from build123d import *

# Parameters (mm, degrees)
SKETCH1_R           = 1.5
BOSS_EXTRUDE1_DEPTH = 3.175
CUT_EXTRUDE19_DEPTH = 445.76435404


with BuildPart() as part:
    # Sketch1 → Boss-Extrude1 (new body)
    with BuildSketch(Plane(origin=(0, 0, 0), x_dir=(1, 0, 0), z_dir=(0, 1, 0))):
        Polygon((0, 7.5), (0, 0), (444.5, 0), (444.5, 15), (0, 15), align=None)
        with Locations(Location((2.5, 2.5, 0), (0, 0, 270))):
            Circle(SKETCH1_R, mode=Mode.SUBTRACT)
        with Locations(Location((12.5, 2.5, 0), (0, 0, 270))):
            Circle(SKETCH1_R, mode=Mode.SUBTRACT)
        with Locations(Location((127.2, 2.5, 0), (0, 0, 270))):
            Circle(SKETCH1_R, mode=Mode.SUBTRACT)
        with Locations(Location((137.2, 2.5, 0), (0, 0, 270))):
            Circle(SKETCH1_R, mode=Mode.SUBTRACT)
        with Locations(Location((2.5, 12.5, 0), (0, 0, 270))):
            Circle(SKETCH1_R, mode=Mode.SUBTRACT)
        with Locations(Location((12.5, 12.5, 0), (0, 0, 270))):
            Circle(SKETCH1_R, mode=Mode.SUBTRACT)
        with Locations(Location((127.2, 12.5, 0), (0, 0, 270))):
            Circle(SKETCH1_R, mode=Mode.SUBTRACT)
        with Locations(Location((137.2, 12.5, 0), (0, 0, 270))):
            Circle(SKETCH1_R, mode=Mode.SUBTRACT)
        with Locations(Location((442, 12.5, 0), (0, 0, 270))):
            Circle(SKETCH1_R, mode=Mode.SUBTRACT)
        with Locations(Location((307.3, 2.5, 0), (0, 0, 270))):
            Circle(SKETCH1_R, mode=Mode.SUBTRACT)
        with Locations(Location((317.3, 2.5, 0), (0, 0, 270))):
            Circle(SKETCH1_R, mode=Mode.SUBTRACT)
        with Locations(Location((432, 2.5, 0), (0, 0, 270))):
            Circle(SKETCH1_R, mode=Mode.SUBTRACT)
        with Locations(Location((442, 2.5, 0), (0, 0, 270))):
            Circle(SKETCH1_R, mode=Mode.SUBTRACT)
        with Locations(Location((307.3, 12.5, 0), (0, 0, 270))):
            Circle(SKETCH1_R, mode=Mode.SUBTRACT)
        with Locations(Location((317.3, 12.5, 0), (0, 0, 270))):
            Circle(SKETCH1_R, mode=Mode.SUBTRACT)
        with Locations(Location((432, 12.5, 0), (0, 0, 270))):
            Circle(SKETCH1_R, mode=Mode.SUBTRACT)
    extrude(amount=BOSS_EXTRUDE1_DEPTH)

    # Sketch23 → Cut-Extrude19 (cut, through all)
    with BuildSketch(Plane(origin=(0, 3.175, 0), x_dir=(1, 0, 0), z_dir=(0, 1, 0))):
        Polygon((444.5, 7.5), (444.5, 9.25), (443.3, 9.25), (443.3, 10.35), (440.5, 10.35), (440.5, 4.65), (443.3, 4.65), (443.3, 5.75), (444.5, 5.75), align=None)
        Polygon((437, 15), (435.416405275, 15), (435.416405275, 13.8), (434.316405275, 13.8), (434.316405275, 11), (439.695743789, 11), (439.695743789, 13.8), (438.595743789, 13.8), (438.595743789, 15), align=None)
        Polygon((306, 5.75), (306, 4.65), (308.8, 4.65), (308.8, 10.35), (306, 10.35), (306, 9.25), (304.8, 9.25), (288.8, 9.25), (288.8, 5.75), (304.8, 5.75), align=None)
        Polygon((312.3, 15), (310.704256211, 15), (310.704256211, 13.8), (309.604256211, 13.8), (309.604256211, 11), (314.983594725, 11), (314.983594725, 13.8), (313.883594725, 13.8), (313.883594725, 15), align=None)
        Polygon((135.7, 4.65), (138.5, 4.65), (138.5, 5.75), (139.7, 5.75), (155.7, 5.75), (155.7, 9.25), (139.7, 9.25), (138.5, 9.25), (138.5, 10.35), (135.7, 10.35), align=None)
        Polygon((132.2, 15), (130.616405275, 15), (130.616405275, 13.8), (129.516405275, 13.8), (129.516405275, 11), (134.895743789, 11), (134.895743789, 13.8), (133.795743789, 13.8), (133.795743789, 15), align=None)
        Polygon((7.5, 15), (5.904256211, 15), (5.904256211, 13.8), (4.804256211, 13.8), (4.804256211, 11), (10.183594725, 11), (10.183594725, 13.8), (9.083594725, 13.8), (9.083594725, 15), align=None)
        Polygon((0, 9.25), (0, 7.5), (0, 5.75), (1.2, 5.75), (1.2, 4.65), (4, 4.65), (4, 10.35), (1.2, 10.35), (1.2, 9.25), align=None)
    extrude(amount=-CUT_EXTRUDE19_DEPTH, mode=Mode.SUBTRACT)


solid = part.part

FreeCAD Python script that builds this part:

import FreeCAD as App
import Part
import Sketcher
Q = App.Units.Quantity


def add_polygon(sketch, points):
    """Adds a closed chain of lines whose ends are joined by coincident constraints."""
    first, n = sketch.GeometryCount, len(points)
    for a, b in zip(points, points[1:] + points[:1]):
        sketch.addGeometry(Part.LineSegment(App.Vector(*a, 0), App.Vector(*b, 0)), False)
    for i in range(n):
        sketch.addConstraint(Sketcher.Constraint("Coincident", first + i, 2, first + (i + 1) % n, 1))

doc = App.newDocument("Part")
body = doc.addObject("PartDesign::Body", "Body")

# Sketch on XZ plane
sketch1 = body.newObject("Sketcher::SketchObject", "Sketch")
sketch1.AttachmentSupport = (doc.getObject("XZ_Plane"), [""])
sketch1.MapMode = "FlatFace"
add_polygon(sketch1, [(0, 0), (444.5, 0), (444.5, -15), (0, -15)])  # lines 0-3
sketch1.addGeometry(Part.Circle(App.Vector(2.5, -2.5, 0), App.Vector(0, 0, 1), 1.5), False)  # 4
sketch1.addGeometry(Part.Circle(App.Vector(12.5, -2.5, 0), App.Vector(0, 0, 1), 1.5), False)  # 5
sketch1.addGeometry(Part.Circle(App.Vector(127.2, -2.5, 0), App.Vector(0, 0, 1), 1.5), False)  # 6
sketch1.addGeometry(Part.Circle(App.Vector(137.2, -2.5, 0), App.Vector(0, 0, 1), 1.5), False)  # 7
sketch1.addGeometry(Part.Circle(App.Vector(307.3, -2.5, 0), App.Vector(0, 0, 1), 1.5), False)  # 8
sketch1.addGeometry(Part.Circle(App.Vector(317.3, -2.5, 0), App.Vector(0, 0, 1), 1.5), False)  # 9
sketch1.addGeometry(Part.Circle(App.Vector(432, -2.5, 0), App.Vector(0, 0, 1), 1.5), False)  # 10
sketch1.addGeometry(Part.Circle(App.Vector(442, -2.5, 0), App.Vector(0, 0, 1), 1.5), False)  # 11
sketch1.addGeometry(Part.Circle(App.Vector(2.5, -12.5, 0), App.Vector(0, 0, 1), 1.5), False)  # 12
sketch1.addGeometry(Part.Circle(App.Vector(12.5, -12.5, 0), App.Vector(0, 0, 1), 1.5), False)  # 13
sketch1.addGeometry(Part.Circle(App.Vector(127.2, -12.5, 0), App.Vector(0, 0, 1), 1.5), False)  # 14
sketch1.addGeometry(Part.Circle(App.Vector(137.2, -12.5, 0), App.Vector(0, 0, 1), 1.5), False)  # 15
sketch1.addGeometry(Part.Circle(App.Vector(307.3, -12.5, 0), App.Vector(0, 0, 1), 1.5), False)  # 16
sketch1.addGeometry(Part.Circle(App.Vector(317.3, -12.5, 0), App.Vector(0, 0, 1), 1.5), False)  # 17
sketch1.addGeometry(Part.Circle(App.Vector(432, -12.5, 0), App.Vector(0, 0, 1), 1.5), False)  # 18
sketch1.addGeometry(Part.Circle(App.Vector(442, -12.5, 0), App.Vector(0, 0, 1), 1.5), False)  # 19
sketch1.addConstraint([
    Sketcher.Constraint("Horizontal", 0),
    Sketcher.Constraint("Vertical", 1),
    Sketcher.Constraint("Horizontal", 2),
    Sketcher.Constraint("Vertical", 3),
    Sketcher.Constraint("Coincident", 3, 2, -1, 1),
    Sketcher.Constraint("Equal", 4, 5),
    Sketcher.Constraint("Equal", 5, 6),
    Sketcher.Constraint("Equal", 6, 7),
    Sketcher.Constraint("Equal", 7, 8),
    Sketcher.Constraint("Equal", 8, 9),
    Sketcher.Constraint("Equal", 9, 10),
    Sketcher.Constraint("Equal", 10, 11),
    Sketcher.Constraint("Equal", 11, 12),
    Sketcher.Constraint("Equal", 12, 13),
    Sketcher.Constraint("Equal", 13, 14),
    Sketcher.Constraint("Equal", 14, 15),
    Sketcher.Constraint("Equal", 15, 16),
    Sketcher.Constraint("Equal", 16, 17),
    Sketcher.Constraint("Equal", 17, 18),
    Sketcher.Constraint("Equal", 18, 19),
    Sketcher.Constraint("Horizontal", 4, 3, 5, 3),
    Sketcher.Constraint("Horizontal", 5, 3, 6, 3),
    Sketcher.Constraint("Horizontal", 6, 3, 7, 3),
    Sketcher.Constraint("Horizontal", 7, 3, 8, 3),
    Sketcher.Constraint("Horizontal", 8, 3, 9, 3),
    Sketcher.Constraint("Horizontal", 9, 3, 10, 3),
    Sketcher.Constraint("Horizontal", 10, 3, 11, 3),
    Sketcher.Constraint("Horizontal", 12, 3, 13, 3),
    Sketcher.Constraint("Horizontal", 13, 3, 14, 3),
    Sketcher.Constraint("Horizontal", 14, 3, 15, 3),
    Sketcher.Constraint("Horizontal", 15, 3, 16, 3),
    Sketcher.Constraint("Horizontal", 16, 3, 17, 3),
    Sketcher.Constraint("Horizontal", 17, 3, 18, 3),
    Sketcher.Constraint("Horizontal", 18, 3, 19, 3),
    Sketcher.Constraint("Vertical", 4, 3, 12, 3),
    Sketcher.Constraint("Vertical", 5, 3, 13, 3),
    Sketcher.Constraint("Vertical", 6, 3, 14, 3),
    Sketcher.Constraint("Vertical", 7, 3, 15, 3),
    Sketcher.Constraint("Vertical", 8, 3, 16, 3),
    Sketcher.Constraint("Vertical", 9, 3, 17, 3),
    Sketcher.Constraint("Vertical", 10, 3, 18, 3),
    Sketcher.Constraint("Vertical", 11, 3, 19, 3),
    Sketcher.Constraint("Diameter", 4, Q("3 mm")),
    Sketcher.Constraint("DistanceY", 1, 2, 1, 1, Q("15 mm")),
    Sketcher.Constraint("DistanceX", 0, 1, 0, 2, Q("444.5 mm")),
    Sketcher.Constraint("DistanceX", -1, 1, 10, 3, Q("432 mm")),
    Sketcher.Constraint("DistanceX", -1, 1, 11, 3, Q("442 mm")),
    Sketcher.Constraint("DistanceX", 4, 3, 5, 3, Q("10 mm")),
    Sketcher.Constraint("DistanceX", 6, 3, 7, 3, Q("10 mm")),
    Sketcher.Constraint("DistanceX", 8, 3, 9, 3, Q("10 mm")),
    Sketcher.Constraint("DistanceY", 12, 3, 4, 3, Q("10 mm")),
    Sketcher.Constraint("DistanceX", -1, 1, 4, 3, Q("2.5 mm")),
    Sketcher.Constraint("DistanceY", 4, 3, -1, 1, Q("2.5 mm")),
    Sketcher.Constraint("DistanceX", -1, 1, 6, 3, Q("127.2 mm")),
    Sketcher.Constraint("DistanceX", -1, 1, 8, 3, Q("307.3 mm")),
])
pad1 = body.newObject("PartDesign::Pad", "Pad")
pad1.Profile = sketch1
pad1.Length = 3.175
pad1.Reversed = True

# Sketch on XZ plane
sketch2 = body.newObject("Sketcher::SketchObject", "Sketch001")
sketch2.AttachmentSupport = (doc.getObject("XZ_Plane"), [""])
sketch2.MapMode = "FlatFace"
sketch2.AttachmentOffset = App.Placement(App.Vector(0, 0, -3.175), App.Rotation())
add_polygon(sketch2, [(444.5, -9.25), (443.3, -9.25), (443.3, -10.35), (440.5, -10.35), (440.5, -4.65), (443.3, -4.65), (443.3, -5.75), (444.5, -5.75)])  # lines 0-7
add_polygon(sketch2, [(435.416405, -15), (435.416405, -13.8), (434.316405, -13.8), (434.316405, -11), (439.695744, -11), (439.695744, -13.8), (438.595744, -13.8), (438.595744, -15)])  # lines 8-15
add_polygon(sketch2, [(306, -5.75), (306, -4.65), (308.8, -4.65), (308.8, -10.35), (306, -10.35), (306, -9.25), (288.8, -9.25), (288.8, -5.75)])  # lines 16-23
add_polygon(sketch2, [(310.704256, -15), (310.704256, -13.8), (309.604256, -13.8), (309.604256, -11), (314.983595, -11), (314.983595, -13.8), (313.883595, -13.8), (313.883595, -15)])  # lines 24-31
add_polygon(sketch2, [(135.7, -4.65), (138.5, -4.65), (138.5, -5.75), (155.7, -5.75), (155.7, -9.25), (138.5, -9.25), (138.5, -10.35), (135.7, -10.35)])  # lines 32-39
add_polygon(sketch2, [(130.616405, -15), (130.616405, -13.8), (129.516405, -13.8), (129.516405, -11), (134.895744, -11), (134.895744, -13.8), (133.795744, -13.8), (133.795744, -15)])  # lines 40-47
add_polygon(sketch2, [(5.904256, -15), (5.904256, -13.8), (4.804256, -13.8), (4.804256, -11), (10.183595, -11), (10.183595, -13.8), (9.083595, -13.8), (9.083595, -15)])  # lines 48-55
add_polygon(sketch2, [(0, -9.25), (0, -5.75), (1.2, -5.75), (1.2, -4.65), (4, -4.65), (4, -10.35), (1.2, -10.35), (1.2, -9.25)])  # lines 56-63
sketch2.addConstraint([
    Sketcher.Constraint("Horizontal", 0),
    Sketcher.Constraint("Vertical", 1),
    Sketcher.Constraint("Horizontal", 2),
    Sketcher.Constraint("Vertical", 3),
    Sketcher.Constraint("Horizontal", 4),
    Sketcher.Constraint("Vertical", 5),
    Sketcher.Constraint("Horizontal", 6),
    Sketcher.Constraint("Vertical", 7),
    Sketcher.Constraint("Vertical", 8),
    Sketcher.Constraint("Horizontal", 9),
    Sketcher.Constraint("Vertical", 10),
    Sketcher.Constraint("Horizontal", 11),
    Sketcher.Constraint("Vertical", 12),
    Sketcher.Constraint("Horizontal", 13),
    Sketcher.Constraint("Vertical", 14),
    Sketcher.Constraint("Horizontal", 15),
    Sketcher.Constraint("Vertical", 16),
    Sketcher.Constraint("Horizontal", 17),
    Sketcher.Constraint("Vertical", 18),
    Sketcher.Constraint("Horizontal", 19),
    Sketcher.Constraint("Vertical", 20),
    Sketcher.Constraint("Horizontal", 21),
    Sketcher.Constraint("Vertical", 22),
    Sketcher.Constraint("Horizontal", 23),
    Sketcher.Constraint("Vertical", 24),
    Sketcher.Constraint("Horizontal", 25),
    Sketcher.Constraint("Vertical", 26),
    Sketcher.Constraint("Horizontal", 27),
    Sketcher.Constraint("Vertical", 28),
    Sketcher.Constraint("Horizontal", 29),
    Sketcher.Constraint("Vertical", 30),
    Sketcher.Constraint("Horizontal", 31),
    Sketcher.Constraint("Horizontal", 32),
    Sketcher.Constraint("Vertical", 33),
    Sketcher.Constraint("Horizontal", 34),
    Sketcher.Constraint("Vertical", 35),
    Sketcher.Constraint("Horizontal", 36),
    Sketcher.Constraint("Vertical", 37),
    Sketcher.Constraint("Horizontal", 38),
    Sketcher.Constraint("Vertical", 39),
    Sketcher.Constraint("Vertical", 40),
    Sketcher.Constraint("Horizontal", 41),
    Sketcher.Constraint("Vertical", 42),
    Sketcher.Constraint("Horizontal", 43),
    Sketcher.Constraint("Vertical", 44),
    Sketcher.Constraint("Horizontal", 45),
    Sketcher.Constraint("Vertical", 46),
    Sketcher.Constraint("Horizontal", 47),
    Sketcher.Constraint("Vertical", 48),
    Sketcher.Constraint("Horizontal", 49),
    Sketcher.Constraint("Vertical", 50),
    Sketcher.Constraint("Horizontal", 51),
    Sketcher.Constraint("Vertical", 52),
    Sketcher.Constraint("Horizontal", 53),
    Sketcher.Constraint("Vertical", 54),
    Sketcher.Constraint("Horizontal", 55),
    Sketcher.Constraint("Vertical", 56),
    Sketcher.Constraint("Horizontal", 57),
    Sketcher.Constraint("Vertical", 58),
    Sketcher.Constraint("Horizontal", 59),
    Sketcher.Constraint("Vertical", 60),
    Sketcher.Constraint("Horizontal", 61),
    Sketcher.Constraint("Vertical", 62),
    Sketcher.Constraint("Horizontal", 63),
    Sketcher.Constraint("PointOnObject", 56, 2, -2),
    Sketcher.Constraint("Horizontal", 9, 2, 12, 2),
    Sketcher.Constraint("Horizontal", 4, 2, 16, 2),
    Sketcher.Constraint("Horizontal", 2, 2, 18, 2),
    Sketcher.Constraint("Horizontal", 7, 2, 20, 2),
    Sketcher.Constraint("Horizontal", 6, 2, 22, 2),
    Sketcher.Constraint("Horizontal", 13, 2, 24, 2),
    Sketcher.Constraint("Horizontal", 11, 2, 26, 2),
    Sketcher.Constraint("Horizontal", 25, 2, 28, 2),
    Sketcher.Constraint("Horizontal", 15, 2, 30, 2),
    Sketcher.Constraint("Horizontal", 17, 2, 32, 2),
    Sketcher.Constraint("Horizontal", 23, 2, 33, 2),
    Sketcher.Constraint("Horizontal", 21, 2, 35, 2),
    Sketcher.Constraint("Horizontal", 19, 2, 37, 2),
    Sketcher.Constraint("Horizontal", 29, 2, 40, 2),
    Sketcher.Constraint("Horizontal", 27, 2, 42, 2),
    Sketcher.Constraint("Horizontal", 41, 2, 44, 2),
    Sketcher.Constraint("Horizontal", 31, 2, 46, 2),
    Sketcher.Constraint("Horizontal", 45, 2, 48, 2),
    Sketcher.Constraint("Horizontal", 43, 2, 50, 2),
    Sketcher.Constraint("Horizontal", 49, 2, 52, 2),
    Sketcher.Constraint("Horizontal", 47, 2, 54, 2),
    Sketcher.Constraint("Horizontal", 34, 2, 56, 2),
    Sketcher.Constraint("Horizontal", 39, 2, 58, 2),
    Sketcher.Constraint("Horizontal", 38, 2, 60, 2),
    Sketcher.Constraint("Horizontal", 36, 2, 62, 2),
    Sketcher.Constraint("Vertical", 1, 2, 4, 2),
    Sketcher.Constraint("Vertical", 16, 2, 19, 2),
    Sketcher.Constraint("Vertical", 33, 2, 36, 2),
    Sketcher.Constraint("Vertical", 58, 2, 61, 2),
    Sketcher.Constraint("Equal", 9, 13),
    Sketcher.Constraint("Equal", 4, 17),
    Sketcher.Constraint("Equal", 13, 25),
    Sketcher.Constraint("Equal", 11, 27),
    Sketcher.Constraint("Equal", 25, 29),
    Sketcher.Constraint("Equal", 19, 32),
    Sketcher.Constraint("Equal", 23, 34),
    Sketcher.Constraint("Equal", 29, 41),
    Sketcher.Constraint("Equal", 27, 43),
    Sketcher.Constraint("Equal", 41, 45),
    Sketcher.Constraint("Equal", 45, 49),
    Sketcher.Constraint("Equal", 43, 51),
    Sketcher.Constraint("Equal", 49, 53),
    Sketcher.Constraint("Equal", 6, 57),
    Sketcher.Constraint("Equal", 38, 59),
    Sketcher.Constraint("Equal", 53, 1),
    Sketcher.Constraint("Equal", 1, 5),
    Sketcher.Constraint("Equal", 63, 8),
    Sketcher.Constraint("Equal", 61, 10),
    Sketcher.Constraint("DistanceX", 0, 2, 0, 1, Q("1.2 mm")),
    Sketcher.Constraint("DistanceX", 2, 2, 2, 1, Q("2.8 mm")),
    Sketcher.Constraint("DistanceX", 9, 2, 9, 1, Q("1.1 mm")),
    Sketcher.Constraint("DistanceX", 21, 2, 21, 1, Q("17.2 mm")),
    Sketcher.Constraint("DistanceY", 3, 1, 3, 2, Q("5.7 mm")),
    Sketcher.Constraint("DistanceY", 10, 2, -1, 1, Q("11 mm")),
    Sketcher.Constraint("DistanceX", -1, 1, 16, 2, Q("306 mm")),
    Sketcher.Constraint("DistanceX", -1, 1, 0, 2, Q("443.3 mm")),
    Sketcher.Constraint("DistanceX", -1, 1, 32, 2, Q("138.5 mm")),
    Sketcher.Constraint("DistanceY", 0, 2, -1, 1, Q("9.25 mm")),
    Sketcher.Constraint("DistanceX", 11, 1, 11, 2, Q("5.379339 mm")),
    Sketcher.Constraint("DistanceX", -1, 1, 8, 2, Q("435.416405 mm")),
    Sketcher.Constraint("DistanceX", -1, 1, 24, 2, Q("310.704256 mm")),
    Sketcher.Constraint("DistanceX", -1, 1, 40, 2, Q("130.616405 mm")),
    Sketcher.Constraint("DistanceX", -1, 1, 48, 2, Q("5.904256 mm")),
])
pocket1 = body.newObject("PartDesign::Pocket", "Pocket")
pocket1.Profile = sketch2
pocket1.Type = "ThroughAll"
pocket1.Reversed = True

doc.recompute()
